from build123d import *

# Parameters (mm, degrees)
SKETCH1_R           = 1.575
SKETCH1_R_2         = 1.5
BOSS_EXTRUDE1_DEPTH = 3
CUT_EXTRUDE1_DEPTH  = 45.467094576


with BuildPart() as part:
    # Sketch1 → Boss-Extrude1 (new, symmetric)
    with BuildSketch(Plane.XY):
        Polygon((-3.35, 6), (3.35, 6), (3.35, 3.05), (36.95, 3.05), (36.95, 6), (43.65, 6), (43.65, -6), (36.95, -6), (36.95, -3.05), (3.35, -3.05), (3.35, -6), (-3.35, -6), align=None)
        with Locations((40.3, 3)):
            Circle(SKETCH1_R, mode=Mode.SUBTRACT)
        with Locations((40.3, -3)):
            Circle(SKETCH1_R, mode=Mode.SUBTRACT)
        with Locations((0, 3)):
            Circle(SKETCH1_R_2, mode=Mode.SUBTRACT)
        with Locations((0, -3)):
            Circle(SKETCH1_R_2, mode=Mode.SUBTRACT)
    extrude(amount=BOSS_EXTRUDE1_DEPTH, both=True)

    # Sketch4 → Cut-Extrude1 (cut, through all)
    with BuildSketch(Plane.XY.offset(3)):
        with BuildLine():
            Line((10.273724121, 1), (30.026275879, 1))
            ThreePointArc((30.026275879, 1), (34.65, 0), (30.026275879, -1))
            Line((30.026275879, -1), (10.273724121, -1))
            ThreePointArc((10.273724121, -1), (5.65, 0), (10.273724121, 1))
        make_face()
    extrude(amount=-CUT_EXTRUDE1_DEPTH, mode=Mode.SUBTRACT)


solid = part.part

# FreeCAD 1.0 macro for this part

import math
import FreeCAD as App
import Part
import Sketcher
Q = App.Units.Quantity

doc = App.newDocument("Part")
body = doc.addObject("PartDesign::Body", "Body")

# Sketch on XY plane
sketch1 = body.newObject("Sketcher::SketchObject", "Sketch")
sketch1.AttachmentSupport = (doc.getObject("XY_Plane"), [""])
sketch1.MapMode = "FlatFace"
sketch1.addGeometry([
    Part.LineSegment(App.Vector(3.4, 6, 0), App.Vector(-3.4, 6, 0)),  # 0
    Part.LineSegment(App.Vector(-3.4, 6, 0), App.Vector(-3.4, -6, 0)),  # 1
    Part.LineSegment(App.Vector(-3.4, -6, 0), App.Vector(3.4, -6, 0)),  # 2
    Part.LineSegment(App.Vector(3.4, -6, 0), App.Vector(3.4, -3, 0)),  # 3
    Part.LineSegment(App.Vector(3.4, -3, 0), App.Vector(37, -3, 0)),  # 4
    Part.LineSegment(App.Vector(37, -3, 0), App.Vector(37, -6, 0)),  # 5
    Part.LineSegment(App.Vector(37, -6, 0), App.Vector(43.6, -6, 0)),  # 6
    Part.LineSegment(App.Vector(43.6, -6, 0), App.Vector(43.6, 6, 0)),  # 7
    Part.LineSegment(App.Vector(43.6, 6, 0), App.Vector(37, 6, 0)),  # 8
    Part.LineSegment(App.Vector(37, 6, 0), App.Vector(37, 3, 0)),  # 9
    Part.LineSegment(App.Vector(37, 3, 0), App.Vector(3.4, 3, 0)),  # 10
    Part.LineSegment(App.Vector(3.4, 3, 0), App.Vector(3.4, 6, 0)),  # 11
    Part.Circle(App.Vector(40.3, -3, 0), App.Vector(0, 0, 1), 1.6),  # 12
    Part.Circle(App.Vector(0, -3, 0), App.Vector(0, 0, 1), 1.5),  # 13
    Part.Circle(App.Vector(40.3, 3, 0), App.Vector(0, 0, 1), 1.6),  # 14
    Part.Circle(App.Vector(0, 3, 0), App.Vector(0, 0, 1), 1.5),  # 15
], False)
sketch1.addConstraint([
    Sketcher.Constraint("Coincident", 0, 2, 1, 1),
    Sketcher.Constraint("Coincident", 1, 2, 2, 1),
    Sketcher.Constraint("Coincident", 2, 2, 3, 1),
    Sketcher.Constraint("Coincident", 3, 2, 4, 1),
    Sketcher.Constraint("Coincident", 4, 2, 5, 1),
    Sketcher.Constraint("Coincident", 5, 2, 6, 1),
    Sketcher.Constraint("Coincident", 6, 2, 7, 1),
    Sketcher.Constraint("Coincident", 7, 2, 8, 1),
    Sketcher.Constraint("Coincident", 8, 2, 9, 1),
    Sketcher.Constraint("Coincident", 9, 2, 10, 1),
    Sketcher.Constraint("Coincident", 10, 2, 11, 1),
    Sketcher.Constraint("Coincident", 11, 2, 0, 1),
    Sketcher.Constraint("Horizontal", 0),
    Sketcher.Constraint("Vertical", 1),
    Sketcher.Constraint("Horizontal", 2),
    Sketcher.Constraint("Vertical", 3),
    Sketcher.Constraint("Horizontal", 4),
    Sketcher.Constraint("Vertical", 5),
    Sketcher.Constraint("Horizontal", 6),
    Sketcher.Constraint("Vertical", 7),
    Sketcher.Constraint("Horizontal", 8),
    Sketcher.Constraint("Vertical", 9),
    Sketcher.Constraint("Horizontal", 10),
    Sketcher.Constraint("Vertical", 11),
    Sketcher.Constraint("Equal", 12, 14),
    Sketcher.Constraint("Equal", 13, 15),
    Sketcher.Constraint("Symmetric", 13, 3, 15, 3, -1, 1),
    Sketcher.Constraint("Symmetric", 0, 2, 2, 2, -1, 1),
    Sketcher.Constraint("Symmetric", 12, 3, 14, 3, -1),
    Sketcher.Constraint("Symmetric", 5, 2, 8, 2, -1),
    Sketcher.Constraint("Symmetric", 3, 2, 10, 2, -1),
    Sketcher.Constraint("PointOnObject", 13, 3, -2),
    Sketcher.Constraint("Horizontal", 12, 3, 13, 3),
    Sketcher.Constraint("Horizontal", 2, 2, 5, 2),
    Sketcher.Constraint("Equal", 2, 6),
    Sketcher.Constraint("Diameter", 13, Q("3 mm")),
    Sketcher.Constraint("Diameter", 12, Q("3.15 mm")),
    Sketcher.Constraint("DistanceY", 1, 2, 1, 1, Q("12 mm")),
    Sketcher.Constraint("DistanceX", 0, 2, 0, 1, Q("6.7 mm")),
    Sketcher.Constraint("DistanceX", 4, 1, 4, 2, Q("33.6 mm")),
    Sketcher.Constraint("DistanceY", 12, 3, -1, 1, Q("3 mm")),
    Sketcher.Constraint("DistanceY", 3, 1, 3, 2, Q("2.95 mm")),
    Sketcher.Constraint("DistanceX", -1, 1, 12, 3, Q("40.3 mm")),
])
pad1 = body.newObject("PartDesign::Pad", "Pad")
pad1.Profile = sketch1
pad1.Length = 6
pad1.Midplane = True

# Sketch on XY plane
sketch2 = body.newObject("Sketcher::SketchObject", "Sketch001")
sketch2.AttachmentSupport = (doc.getObject("XY_Plane"), [""])
sketch2.MapMode = "FlatFace"
sketch2.AttachmentOffset = App.Placement(App.Vector(0, 0, 3), App.Rotation())
sketch2.addGeometry([
    Part.LineSegment(App.Vector(30, 1, 0), App.Vector(10.3, 1, 0)),
    Part.ArcOfCircle(Part.Circle(App.Vector(8.1, 0, 0), App.Vector(0, 0, 1), 2.4), math.radians(24), math.radians(336)),
    Part.LineSegment(App.Vector(10.3, -1, 0), App.Vector(30, -1, 0)),
    Part.ArcOfCircle(Part.Circle(App.Vector(32.2, 0, 0), App.Vector(0, 0, 1), 2.4), math.radians(-156), math.radians(156)),
], False)
sketch2.addConstraint([
    Sketcher.Constraint("Coincident", 0, 2, 1, 1),
    Sketcher.Constraint("Coincident", 1, 2, 2, 1),
    Sketcher.Constraint("Coincident", 2, 2, 3, 1),
    Sketcher.Constraint("Coincident", 3, 2, 0, 1),
    Sketcher.Constraint("Horizontal", 0),
    Sketcher.Constraint("Horizontal", 2),
    Sketcher.Constraint("Equal", 1, 3),
    Sketcher.Constraint("Symmetric", 0, 2, 1, 2, -1),
    Sketcher.Constraint("PointOnObject", 3, 3, -1),
    Sketcher.Constraint("Radius", 1, Q("2.42 mm")),
    Sketcher.Constraint("DistanceY", -1, 1, 0, 2, Q("1 mm")),
    Sketcher.Constraint("DistanceX", -1, 1, 1, 3, Q("8.07 mm")),
    Sketcher.Constraint("DistanceX", -1, 1, 3, 3, Q("32.23 mm")),
])
pocket1 = body.newObject("PartDesign::Pocket", "Pocket")
pocket1.Profile = sketch2
pocket1.Type = "ThroughAll"

doc.recompute()
